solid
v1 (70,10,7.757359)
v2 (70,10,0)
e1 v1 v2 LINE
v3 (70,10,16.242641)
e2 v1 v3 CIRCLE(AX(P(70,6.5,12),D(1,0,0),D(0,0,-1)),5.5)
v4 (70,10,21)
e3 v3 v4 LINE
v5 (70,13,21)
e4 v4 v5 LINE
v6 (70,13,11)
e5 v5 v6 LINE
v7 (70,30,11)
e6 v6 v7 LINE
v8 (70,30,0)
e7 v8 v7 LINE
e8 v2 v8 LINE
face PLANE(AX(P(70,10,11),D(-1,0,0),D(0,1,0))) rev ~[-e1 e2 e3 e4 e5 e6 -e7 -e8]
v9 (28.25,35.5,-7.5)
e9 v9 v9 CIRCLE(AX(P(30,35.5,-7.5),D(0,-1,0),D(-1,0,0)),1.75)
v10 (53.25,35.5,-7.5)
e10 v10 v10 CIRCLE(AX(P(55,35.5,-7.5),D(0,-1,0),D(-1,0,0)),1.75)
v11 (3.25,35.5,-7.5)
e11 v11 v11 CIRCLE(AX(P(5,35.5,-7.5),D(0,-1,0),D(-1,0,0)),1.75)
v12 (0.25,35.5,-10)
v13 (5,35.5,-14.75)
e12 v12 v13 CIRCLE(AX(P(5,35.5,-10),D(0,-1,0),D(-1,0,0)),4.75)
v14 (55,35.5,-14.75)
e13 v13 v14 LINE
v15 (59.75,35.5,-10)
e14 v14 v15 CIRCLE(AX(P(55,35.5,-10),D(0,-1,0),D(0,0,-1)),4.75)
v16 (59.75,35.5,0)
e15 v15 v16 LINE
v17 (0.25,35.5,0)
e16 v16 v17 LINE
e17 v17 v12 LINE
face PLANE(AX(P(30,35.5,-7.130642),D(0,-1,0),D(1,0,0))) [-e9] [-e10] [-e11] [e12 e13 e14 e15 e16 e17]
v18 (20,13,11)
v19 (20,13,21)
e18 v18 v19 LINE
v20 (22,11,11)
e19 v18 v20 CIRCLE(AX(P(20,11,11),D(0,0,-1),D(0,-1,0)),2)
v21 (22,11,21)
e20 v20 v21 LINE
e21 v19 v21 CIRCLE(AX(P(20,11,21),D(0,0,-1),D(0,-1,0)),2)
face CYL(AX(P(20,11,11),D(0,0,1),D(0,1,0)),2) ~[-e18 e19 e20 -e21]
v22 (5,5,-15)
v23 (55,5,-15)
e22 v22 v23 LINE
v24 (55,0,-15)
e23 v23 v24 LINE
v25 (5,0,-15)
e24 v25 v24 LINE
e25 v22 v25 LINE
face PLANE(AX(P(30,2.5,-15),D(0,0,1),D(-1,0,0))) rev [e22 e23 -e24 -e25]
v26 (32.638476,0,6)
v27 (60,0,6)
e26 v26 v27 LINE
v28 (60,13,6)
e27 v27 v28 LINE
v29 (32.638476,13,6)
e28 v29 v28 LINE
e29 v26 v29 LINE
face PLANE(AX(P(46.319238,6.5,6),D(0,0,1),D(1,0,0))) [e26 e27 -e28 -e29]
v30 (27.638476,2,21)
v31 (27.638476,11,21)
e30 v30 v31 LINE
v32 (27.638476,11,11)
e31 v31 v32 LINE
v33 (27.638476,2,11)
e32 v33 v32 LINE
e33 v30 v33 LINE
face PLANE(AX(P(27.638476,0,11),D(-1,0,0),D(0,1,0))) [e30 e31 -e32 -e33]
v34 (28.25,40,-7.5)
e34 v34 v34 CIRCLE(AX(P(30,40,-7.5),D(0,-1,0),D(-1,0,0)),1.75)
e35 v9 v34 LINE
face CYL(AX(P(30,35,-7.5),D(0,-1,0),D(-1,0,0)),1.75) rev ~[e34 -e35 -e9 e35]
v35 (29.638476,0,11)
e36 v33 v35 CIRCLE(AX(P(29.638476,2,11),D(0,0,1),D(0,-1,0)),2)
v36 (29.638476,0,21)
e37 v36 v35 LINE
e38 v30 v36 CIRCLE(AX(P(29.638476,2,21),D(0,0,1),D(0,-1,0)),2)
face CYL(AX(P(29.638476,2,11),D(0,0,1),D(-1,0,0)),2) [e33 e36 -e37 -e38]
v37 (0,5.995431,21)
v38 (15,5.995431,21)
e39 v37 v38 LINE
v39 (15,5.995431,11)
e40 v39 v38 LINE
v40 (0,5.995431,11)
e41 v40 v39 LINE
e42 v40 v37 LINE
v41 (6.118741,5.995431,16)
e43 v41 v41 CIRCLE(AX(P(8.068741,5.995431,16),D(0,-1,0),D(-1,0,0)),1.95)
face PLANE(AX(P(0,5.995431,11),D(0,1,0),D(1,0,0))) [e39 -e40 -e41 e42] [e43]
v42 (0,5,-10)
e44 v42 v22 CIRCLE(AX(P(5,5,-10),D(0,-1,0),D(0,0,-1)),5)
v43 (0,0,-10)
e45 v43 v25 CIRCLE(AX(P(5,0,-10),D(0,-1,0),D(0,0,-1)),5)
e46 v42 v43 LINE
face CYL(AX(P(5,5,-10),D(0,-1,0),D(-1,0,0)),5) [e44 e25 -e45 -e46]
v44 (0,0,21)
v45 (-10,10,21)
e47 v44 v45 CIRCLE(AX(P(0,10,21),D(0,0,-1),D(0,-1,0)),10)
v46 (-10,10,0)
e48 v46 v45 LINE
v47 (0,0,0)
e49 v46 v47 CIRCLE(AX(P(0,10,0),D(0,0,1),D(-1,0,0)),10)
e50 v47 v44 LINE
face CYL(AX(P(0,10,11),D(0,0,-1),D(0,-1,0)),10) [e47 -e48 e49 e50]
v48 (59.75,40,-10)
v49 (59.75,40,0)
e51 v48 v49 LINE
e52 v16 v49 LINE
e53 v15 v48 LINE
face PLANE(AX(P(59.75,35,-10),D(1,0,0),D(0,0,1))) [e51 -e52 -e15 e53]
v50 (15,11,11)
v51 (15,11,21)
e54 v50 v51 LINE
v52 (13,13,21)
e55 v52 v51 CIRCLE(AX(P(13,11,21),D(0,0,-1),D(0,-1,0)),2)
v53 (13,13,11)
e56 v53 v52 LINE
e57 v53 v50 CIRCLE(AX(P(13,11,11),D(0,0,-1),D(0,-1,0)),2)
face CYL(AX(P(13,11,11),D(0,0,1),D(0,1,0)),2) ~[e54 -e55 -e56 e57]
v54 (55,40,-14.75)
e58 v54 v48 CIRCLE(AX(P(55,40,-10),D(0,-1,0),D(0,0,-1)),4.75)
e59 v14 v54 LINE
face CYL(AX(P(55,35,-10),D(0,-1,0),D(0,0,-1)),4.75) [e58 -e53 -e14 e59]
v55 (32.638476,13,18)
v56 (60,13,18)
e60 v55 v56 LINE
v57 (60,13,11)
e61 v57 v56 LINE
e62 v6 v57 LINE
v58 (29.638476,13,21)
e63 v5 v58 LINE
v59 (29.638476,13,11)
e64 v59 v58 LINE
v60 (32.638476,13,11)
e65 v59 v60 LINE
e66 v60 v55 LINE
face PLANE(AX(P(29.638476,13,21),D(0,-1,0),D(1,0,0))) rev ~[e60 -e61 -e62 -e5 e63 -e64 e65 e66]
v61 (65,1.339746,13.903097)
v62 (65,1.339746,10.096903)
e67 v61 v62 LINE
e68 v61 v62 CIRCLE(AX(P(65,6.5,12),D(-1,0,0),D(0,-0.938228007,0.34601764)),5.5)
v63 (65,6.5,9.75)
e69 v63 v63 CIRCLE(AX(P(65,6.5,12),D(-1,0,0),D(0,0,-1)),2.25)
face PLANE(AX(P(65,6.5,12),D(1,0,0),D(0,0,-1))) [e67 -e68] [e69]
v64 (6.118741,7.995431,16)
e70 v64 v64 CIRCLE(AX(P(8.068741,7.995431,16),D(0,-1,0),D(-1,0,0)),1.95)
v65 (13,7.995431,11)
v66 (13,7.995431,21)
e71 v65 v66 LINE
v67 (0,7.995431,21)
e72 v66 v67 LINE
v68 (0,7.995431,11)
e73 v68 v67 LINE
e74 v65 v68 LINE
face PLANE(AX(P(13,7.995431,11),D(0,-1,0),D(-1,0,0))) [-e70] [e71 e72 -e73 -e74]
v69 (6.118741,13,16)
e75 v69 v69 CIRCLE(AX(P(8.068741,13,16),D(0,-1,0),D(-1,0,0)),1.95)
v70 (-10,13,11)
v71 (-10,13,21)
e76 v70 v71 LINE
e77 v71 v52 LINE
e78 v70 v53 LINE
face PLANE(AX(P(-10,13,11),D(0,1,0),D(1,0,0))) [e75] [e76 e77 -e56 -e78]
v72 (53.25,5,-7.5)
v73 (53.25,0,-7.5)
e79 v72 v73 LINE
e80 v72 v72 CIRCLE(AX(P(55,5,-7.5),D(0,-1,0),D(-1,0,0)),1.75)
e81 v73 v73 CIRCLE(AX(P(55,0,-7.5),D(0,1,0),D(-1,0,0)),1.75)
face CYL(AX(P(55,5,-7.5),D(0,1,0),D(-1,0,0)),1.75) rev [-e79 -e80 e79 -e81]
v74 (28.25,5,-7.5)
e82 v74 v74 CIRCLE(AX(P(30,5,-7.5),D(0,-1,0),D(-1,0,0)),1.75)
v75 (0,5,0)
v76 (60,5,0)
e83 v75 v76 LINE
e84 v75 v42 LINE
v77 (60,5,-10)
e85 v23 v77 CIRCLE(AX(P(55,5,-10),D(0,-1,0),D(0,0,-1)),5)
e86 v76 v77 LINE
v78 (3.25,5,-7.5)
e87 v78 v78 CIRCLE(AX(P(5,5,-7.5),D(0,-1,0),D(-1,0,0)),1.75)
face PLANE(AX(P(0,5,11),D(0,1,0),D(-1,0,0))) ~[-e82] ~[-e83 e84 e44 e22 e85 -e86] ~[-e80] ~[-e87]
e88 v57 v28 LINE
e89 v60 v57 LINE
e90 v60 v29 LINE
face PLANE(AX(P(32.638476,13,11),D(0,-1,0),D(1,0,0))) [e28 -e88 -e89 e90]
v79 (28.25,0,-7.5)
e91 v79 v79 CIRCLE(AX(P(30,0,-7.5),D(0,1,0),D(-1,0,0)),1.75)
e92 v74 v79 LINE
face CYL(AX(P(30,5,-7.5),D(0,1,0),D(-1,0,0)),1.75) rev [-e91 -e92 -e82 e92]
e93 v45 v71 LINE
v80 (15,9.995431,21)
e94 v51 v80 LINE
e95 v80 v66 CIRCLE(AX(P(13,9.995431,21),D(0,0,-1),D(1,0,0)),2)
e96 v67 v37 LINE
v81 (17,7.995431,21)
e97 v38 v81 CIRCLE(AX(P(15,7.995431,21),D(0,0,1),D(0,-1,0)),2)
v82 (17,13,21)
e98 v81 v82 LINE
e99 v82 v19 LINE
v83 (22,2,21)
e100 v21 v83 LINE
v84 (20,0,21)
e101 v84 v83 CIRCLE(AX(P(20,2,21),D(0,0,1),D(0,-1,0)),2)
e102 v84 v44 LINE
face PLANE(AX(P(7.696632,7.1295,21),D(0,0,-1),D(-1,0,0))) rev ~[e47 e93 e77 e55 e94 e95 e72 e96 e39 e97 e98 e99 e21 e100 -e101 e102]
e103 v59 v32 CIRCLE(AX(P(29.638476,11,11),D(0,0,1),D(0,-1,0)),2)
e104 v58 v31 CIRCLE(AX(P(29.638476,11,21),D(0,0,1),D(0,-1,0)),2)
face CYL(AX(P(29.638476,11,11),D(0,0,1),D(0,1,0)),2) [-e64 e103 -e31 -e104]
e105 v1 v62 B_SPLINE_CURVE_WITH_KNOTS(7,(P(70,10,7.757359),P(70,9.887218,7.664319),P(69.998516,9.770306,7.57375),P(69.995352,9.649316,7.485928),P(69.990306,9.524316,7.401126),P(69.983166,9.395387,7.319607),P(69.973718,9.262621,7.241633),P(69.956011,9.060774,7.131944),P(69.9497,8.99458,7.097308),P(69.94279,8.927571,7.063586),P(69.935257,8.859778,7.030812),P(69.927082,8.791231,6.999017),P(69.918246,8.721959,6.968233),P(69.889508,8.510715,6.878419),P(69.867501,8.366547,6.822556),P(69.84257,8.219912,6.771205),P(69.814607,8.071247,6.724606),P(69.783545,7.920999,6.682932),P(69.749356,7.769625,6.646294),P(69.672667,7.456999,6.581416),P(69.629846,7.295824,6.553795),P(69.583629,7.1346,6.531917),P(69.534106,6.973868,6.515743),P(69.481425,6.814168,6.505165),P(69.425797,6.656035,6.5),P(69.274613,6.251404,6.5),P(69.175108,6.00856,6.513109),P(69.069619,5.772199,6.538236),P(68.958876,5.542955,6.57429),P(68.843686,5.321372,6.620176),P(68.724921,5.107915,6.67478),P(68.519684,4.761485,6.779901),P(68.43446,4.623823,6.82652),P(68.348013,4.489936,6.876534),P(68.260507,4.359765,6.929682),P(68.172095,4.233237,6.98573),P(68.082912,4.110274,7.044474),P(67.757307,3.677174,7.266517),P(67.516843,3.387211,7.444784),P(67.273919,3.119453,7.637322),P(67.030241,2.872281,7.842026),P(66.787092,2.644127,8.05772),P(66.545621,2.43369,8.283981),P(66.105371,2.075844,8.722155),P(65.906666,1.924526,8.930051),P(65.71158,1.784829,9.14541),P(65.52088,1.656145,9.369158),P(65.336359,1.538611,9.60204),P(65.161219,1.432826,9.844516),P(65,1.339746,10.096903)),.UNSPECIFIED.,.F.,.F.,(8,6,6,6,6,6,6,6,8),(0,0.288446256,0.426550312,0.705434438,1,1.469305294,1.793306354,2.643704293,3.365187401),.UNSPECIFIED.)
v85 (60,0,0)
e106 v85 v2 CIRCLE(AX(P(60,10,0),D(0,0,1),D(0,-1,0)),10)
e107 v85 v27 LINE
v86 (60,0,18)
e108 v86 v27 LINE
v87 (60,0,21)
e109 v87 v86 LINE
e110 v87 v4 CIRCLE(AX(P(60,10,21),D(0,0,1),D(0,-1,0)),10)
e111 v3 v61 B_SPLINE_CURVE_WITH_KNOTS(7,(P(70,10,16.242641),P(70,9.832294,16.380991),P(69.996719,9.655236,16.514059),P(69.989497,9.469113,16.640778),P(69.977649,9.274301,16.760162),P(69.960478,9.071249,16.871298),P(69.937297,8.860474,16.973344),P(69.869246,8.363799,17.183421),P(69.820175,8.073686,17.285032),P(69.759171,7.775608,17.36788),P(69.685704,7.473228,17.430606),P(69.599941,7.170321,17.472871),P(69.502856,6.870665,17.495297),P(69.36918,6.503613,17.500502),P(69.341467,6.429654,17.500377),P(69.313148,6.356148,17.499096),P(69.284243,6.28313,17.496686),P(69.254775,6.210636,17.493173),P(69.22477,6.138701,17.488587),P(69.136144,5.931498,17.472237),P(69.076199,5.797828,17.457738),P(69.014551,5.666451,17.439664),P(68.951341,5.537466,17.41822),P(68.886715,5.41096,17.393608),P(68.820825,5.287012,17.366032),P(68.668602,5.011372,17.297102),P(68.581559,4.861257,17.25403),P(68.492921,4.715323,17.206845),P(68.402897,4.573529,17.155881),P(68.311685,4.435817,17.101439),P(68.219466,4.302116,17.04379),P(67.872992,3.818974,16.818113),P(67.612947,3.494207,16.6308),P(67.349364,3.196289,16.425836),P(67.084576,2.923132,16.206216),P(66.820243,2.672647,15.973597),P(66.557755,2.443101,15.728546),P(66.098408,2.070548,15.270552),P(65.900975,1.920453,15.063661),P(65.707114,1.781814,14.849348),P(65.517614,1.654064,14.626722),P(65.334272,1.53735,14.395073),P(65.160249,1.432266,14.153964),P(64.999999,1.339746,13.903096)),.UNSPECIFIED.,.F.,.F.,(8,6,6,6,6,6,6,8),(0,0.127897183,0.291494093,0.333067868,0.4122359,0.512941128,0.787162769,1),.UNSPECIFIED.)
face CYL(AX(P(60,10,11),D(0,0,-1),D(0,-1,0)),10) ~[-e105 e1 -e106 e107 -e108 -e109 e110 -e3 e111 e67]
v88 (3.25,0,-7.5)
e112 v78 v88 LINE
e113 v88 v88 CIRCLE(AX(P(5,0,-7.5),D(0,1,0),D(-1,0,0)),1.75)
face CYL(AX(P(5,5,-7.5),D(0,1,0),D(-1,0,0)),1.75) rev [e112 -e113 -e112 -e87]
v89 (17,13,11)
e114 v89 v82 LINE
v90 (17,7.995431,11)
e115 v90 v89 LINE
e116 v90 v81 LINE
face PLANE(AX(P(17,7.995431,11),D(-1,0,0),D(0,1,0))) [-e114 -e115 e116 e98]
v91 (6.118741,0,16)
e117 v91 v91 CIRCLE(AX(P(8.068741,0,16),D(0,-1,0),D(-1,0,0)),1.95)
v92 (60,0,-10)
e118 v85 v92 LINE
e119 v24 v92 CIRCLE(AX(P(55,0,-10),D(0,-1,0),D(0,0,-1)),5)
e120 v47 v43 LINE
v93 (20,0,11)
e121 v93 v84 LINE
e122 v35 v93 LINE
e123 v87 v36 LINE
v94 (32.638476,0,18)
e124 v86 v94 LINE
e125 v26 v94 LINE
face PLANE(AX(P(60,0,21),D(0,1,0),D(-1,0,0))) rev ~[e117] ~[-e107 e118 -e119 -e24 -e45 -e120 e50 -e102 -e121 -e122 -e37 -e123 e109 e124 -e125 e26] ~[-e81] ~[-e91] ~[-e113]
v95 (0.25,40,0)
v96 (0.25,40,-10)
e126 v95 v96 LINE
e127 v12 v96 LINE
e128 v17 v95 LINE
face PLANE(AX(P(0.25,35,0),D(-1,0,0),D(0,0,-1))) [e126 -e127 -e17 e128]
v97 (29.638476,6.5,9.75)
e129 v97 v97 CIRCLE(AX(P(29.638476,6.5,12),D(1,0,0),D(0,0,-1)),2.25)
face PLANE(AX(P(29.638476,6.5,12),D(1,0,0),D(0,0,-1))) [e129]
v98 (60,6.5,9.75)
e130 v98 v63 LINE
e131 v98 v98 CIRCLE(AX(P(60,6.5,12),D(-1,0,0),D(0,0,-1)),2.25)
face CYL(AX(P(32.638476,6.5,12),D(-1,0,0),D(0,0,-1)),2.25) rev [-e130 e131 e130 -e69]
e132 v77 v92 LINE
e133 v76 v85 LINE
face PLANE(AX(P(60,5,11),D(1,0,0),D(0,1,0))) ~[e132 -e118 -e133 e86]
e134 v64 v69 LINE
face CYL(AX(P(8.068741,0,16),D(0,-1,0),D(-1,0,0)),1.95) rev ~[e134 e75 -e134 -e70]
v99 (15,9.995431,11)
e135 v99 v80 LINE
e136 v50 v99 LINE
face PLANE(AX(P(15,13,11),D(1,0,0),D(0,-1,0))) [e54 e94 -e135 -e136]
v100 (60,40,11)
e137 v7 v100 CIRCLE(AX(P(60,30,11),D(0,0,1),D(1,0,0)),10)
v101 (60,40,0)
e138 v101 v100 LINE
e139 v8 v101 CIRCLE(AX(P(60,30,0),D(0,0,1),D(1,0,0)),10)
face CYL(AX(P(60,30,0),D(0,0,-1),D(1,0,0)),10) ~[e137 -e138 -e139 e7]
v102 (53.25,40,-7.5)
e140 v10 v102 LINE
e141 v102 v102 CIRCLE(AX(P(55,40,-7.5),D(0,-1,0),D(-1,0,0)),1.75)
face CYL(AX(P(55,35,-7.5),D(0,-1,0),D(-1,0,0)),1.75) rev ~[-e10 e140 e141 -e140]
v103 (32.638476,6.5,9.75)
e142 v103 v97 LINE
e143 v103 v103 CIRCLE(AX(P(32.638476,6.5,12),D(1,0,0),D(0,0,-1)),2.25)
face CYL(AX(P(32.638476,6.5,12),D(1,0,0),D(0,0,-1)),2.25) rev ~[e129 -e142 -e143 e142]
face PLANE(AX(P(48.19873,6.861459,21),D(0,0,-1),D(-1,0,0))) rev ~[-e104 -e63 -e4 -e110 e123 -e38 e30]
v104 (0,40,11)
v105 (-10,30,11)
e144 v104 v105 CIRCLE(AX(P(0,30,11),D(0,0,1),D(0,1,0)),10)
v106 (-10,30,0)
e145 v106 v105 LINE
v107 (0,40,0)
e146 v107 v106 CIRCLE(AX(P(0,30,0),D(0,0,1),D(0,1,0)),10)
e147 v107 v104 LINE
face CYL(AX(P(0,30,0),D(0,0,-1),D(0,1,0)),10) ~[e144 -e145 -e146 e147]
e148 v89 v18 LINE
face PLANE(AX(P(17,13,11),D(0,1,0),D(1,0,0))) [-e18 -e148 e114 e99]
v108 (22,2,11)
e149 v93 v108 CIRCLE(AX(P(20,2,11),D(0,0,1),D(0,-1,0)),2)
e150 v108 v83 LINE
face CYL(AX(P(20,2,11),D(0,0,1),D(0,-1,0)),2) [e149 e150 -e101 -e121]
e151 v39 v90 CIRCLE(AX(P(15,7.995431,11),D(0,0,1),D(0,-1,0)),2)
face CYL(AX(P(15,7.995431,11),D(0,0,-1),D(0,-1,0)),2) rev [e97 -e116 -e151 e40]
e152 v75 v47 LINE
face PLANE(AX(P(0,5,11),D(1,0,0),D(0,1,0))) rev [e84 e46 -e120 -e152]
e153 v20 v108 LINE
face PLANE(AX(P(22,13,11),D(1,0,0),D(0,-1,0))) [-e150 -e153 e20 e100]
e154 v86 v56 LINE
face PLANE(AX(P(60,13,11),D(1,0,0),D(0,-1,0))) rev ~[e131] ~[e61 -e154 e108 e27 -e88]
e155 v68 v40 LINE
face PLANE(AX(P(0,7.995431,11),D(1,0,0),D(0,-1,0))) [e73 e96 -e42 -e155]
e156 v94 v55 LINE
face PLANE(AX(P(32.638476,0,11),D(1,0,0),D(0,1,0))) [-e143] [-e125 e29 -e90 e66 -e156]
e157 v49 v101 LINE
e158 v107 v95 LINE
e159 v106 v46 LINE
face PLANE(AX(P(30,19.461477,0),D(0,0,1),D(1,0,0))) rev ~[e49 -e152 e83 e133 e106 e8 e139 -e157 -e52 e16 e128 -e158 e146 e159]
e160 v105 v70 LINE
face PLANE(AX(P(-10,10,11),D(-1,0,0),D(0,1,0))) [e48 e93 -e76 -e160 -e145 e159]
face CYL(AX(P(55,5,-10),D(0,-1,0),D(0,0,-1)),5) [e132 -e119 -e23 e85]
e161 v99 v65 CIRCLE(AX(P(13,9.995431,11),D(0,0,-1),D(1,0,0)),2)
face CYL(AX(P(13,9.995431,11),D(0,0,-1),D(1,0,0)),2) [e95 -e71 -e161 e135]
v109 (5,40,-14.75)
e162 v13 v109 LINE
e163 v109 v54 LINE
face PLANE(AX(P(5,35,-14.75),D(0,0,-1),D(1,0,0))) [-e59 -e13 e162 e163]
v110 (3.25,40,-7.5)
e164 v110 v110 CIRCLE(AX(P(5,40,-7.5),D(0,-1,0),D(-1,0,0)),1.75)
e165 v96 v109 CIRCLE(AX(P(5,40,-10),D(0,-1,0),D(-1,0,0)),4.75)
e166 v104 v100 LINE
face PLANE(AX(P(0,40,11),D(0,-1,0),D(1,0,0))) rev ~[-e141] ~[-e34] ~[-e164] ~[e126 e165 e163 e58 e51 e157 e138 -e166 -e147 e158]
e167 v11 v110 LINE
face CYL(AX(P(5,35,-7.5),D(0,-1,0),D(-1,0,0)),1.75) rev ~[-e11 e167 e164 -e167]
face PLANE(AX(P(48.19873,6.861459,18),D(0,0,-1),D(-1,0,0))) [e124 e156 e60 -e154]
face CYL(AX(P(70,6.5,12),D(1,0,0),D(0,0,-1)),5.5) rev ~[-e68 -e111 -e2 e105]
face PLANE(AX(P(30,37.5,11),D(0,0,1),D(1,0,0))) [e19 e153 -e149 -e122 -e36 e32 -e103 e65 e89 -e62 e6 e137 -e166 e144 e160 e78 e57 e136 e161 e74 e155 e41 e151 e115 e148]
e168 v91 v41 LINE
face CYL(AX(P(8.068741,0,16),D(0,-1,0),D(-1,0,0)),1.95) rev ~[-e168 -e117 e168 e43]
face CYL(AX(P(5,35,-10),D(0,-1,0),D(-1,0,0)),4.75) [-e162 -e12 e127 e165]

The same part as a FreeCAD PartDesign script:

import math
import FreeCAD as App
import Part
import Sketcher

V = App.Vector
Q = App.Units.Quantity


def edges_at(feature, points):
    """Names of the edges that pass closest to the given points."""
    edges = feature.Shape.Edges
    near = lambda p: min(range(len(edges)), key=lambda i: edges[i].distToShape(Part.Vertex(*p))[0])
    return sorted({f"Edge{near(p) + 1}" for p in points})

doc = App.newDocument("Part")
body = doc.addObject("PartDesign::Body", "Body")

# Sketch on XY plane
sketch1 = doc.addObject("Sketcher::SketchObject", "Sketch")
body.addObject(sketch1)
sketch1.AttachmentSupport = (doc.XY_Plane, [""])
sketch1.MapMode = "FlatFace"
sketch1.addGeometry(Part.LineSegment(V(60, 35, 0), V(0, 35, 0)), False)
sketch1.addGeometry(Part.LineSegment(V(0, 35, 0), V(0, 40, 0)), False)
sketch1.addGeometry(Part.ArcOfCircle(Part.Circle(V(0, 30, 0), V(0, 0, 1), 10), math.radians(90), math.radians(180)), False)
sketch1.addGeometry(Part.LineSegment(V(-10, 30, 0), V(-10, 10, 0)), False)
sketch1.addGeometry(Part.ArcOfCircle(Part.Circle(V(0, 10, 0), V(0, 0, 1), 10), math.radians(180), math.radians(270)), False)
sketch1.addGeometry(Part.LineSegment(V(0, 0, 0), V(60, 0, 0)), False)
sketch1.addGeometry(Part.ArcOfCircle(Part.Circle(V(60, 10, 0), V(0, 0, 1), 10), math.radians(-90), math.radians(0)), False)
sketch1.addGeometry(Part.LineSegment(V(70, 10, 0), V(70, 30, 0)), False)
sketch1.addGeometry(Part.ArcOfCircle(Part.Circle(V(60, 30, 0), V(0, 0, 1), 10), math.radians(0), math.radians(90)), False)
sketch1.addGeometry(Part.LineSegment(V(60, 40, 0), V(60, 35, 0)), False)
sketch1.addConstraint(Sketcher.Constraint("Coincident", 0, 2, 1, 1))
sketch1.addConstraint(Sketcher.Constraint("Coincident", 1, 2, 2, 1))
sketch1.addConstraint(Sketcher.Constraint("Tangent", 2, 2, 3, 1))
sketch1.addConstraint(Sketcher.Constraint("Tangent", 3, 2, 4, 1))
sketch1.addConstraint(Sketcher.Constraint("Tangent", 4, 2, 5, 1))
sketch1.addConstraint(Sketcher.Constraint("Tangent", 5, 2, 6, 1))
sketch1.addConstraint(Sketcher.Constraint("Tangent", 6, 2, 7, 1))
sketch1.addConstraint(Sketcher.Constraint("Tangent", 7, 2, 8, 1))
sketch1.addConstraint(Sketcher.Constraint("Coincident", 8, 2, 9, 1))
sketch1.addConstraint(Sketcher.Constraint("Coincident", 9, 2, 0, 1))
sketch1.addConstraint(Sketcher.Constraint("Horizontal", 0))
sketch1.addConstraint(Sketcher.Constraint("Vertical", 1))
sketch1.addConstraint(Sketcher.Constraint("Vertical", 3))
sketch1.addConstraint(Sketcher.Constraint("Horizontal", 5))
sketch1.addConstraint(Sketcher.Constraint("Vertical", 7))
sketch1.addConstraint(Sketcher.Constraint("Vertical", 9))
sketch1.addConstraint(Sketcher.Constraint("Coincident", 4, 2, -1, 1))
sketch1.addConstraint(Sketcher.Constraint("Equal", 2, 4))
sketch1.addConstraint(Sketcher.Constraint("Equal", 4, 6))
sketch1.addConstraint(Sketcher.Constraint("Equal", 6, 8))
sketch1.addConstraint(Sketcher.Constraint("PointOnObject", 0, 2, -2))
sketch1.addConstraint(Sketcher.Constraint("Horizontal", 2, 3, 8, 3))
sketch1.addConstraint(Sketcher.Constraint("Vertical", 5, 2, 8, 2))
sketch1.addConstraint(Sketcher.Constraint("Radius", 2, Q("10 mm")))
sketch1.addConstraint(Sketcher.Constraint("DistanceX", 0, 2, 0, 1, Q("60 mm")))
sketch1.addConstraint(Sketcher.Constraint("DistanceY", 1, 1, 1, 2, Q("5 mm")))
sketch1.addConstraint(Sketcher.Constraint("DistanceY", 3, 2, 3, 1, Q("20 mm")))
pad1 = doc.addObject("PartDesign::Pad", "Pad")
body.addObject(pad1)
pad1.Profile = sketch1
pad1.Length = 11

# Sketch on XY plane
sketch2 = doc.addObject("Sketcher::SketchObject", "Sketch001")
body.addObject(sketch2)
sketch2.AttachmentSupport = (doc.XY_Plane, [""])
sketch2.MapMode = "FlatFace"
sketch2.AttachmentOffset = App.Placement(V(0, 0, 11), App.Rotation())
sketch2.addGeometry(Part.LineSegment(V(0, 40, 0), V(0, 35, 0)), False)
sketch2.addGeometry(Part.LineSegment(V(0, 35, 0), V(60, 35, 0)), False)
sketch2.addGeometry(Part.LineSegment(V(60, 35, 0), V(60, 40, 0)), False)
sketch2.addGeometry(Part.LineSegment(V(60, 40, 0), V(0, 40, 0)), False)
sketch2.addConstraint(Sketcher.Constraint("Coincident", 0, 2, 1, 1))
sketch2.addConstraint(Sketcher.Constraint("Coincident", 1, 2, 2, 1))
sketch2.addConstraint(Sketcher.Constraint("Coincident", 2, 2, 3, 1))
sketch2.addConstraint(Sketcher.Constraint("Coincident", 3, 2, 0, 1))
sketch2.addConstraint(Sketcher.Constraint("Vertical", 0))
sketch2.addConstraint(Sketcher.Constraint("Horizontal", 1))
sketch2.addConstraint(Sketcher.Constraint("Vertical", 2))
sketch2.addConstraint(Sketcher.Constraint("Horizontal", 3))
sketch2.addConstraint(Sketcher.Constraint("PointOnObject", 0, 2, -2))
sketch2.addConstraint(Sketcher.Constraint("DistanceX", 1, 1, 1, 2, Q("60 mm")))
sketch2.addConstraint(Sketcher.Constraint("DistanceY", 0, 2, 0, 1, Q("5 mm")))
sketch2.addConstraint(Sketcher.Constraint("DistanceY", -1, 1, 0, 2, Q("35 mm")))
pad2 = doc.addObject("PartDesign::Pad", "Pad001")
body.addObject(pad2)
pad2.Profile = sketch2
pad2.Length = 26
pad2.Reversed = True
doc.recompute()

fillet = doc.addObject("PartDesign::Fillet", "Fillet")
body.addObject(fillet)
fillet.Base = (pad2, edges_at(pad2, [(0, 37.5, -15), (60, 37.5, -15)]))
fillet.Radius = 5

# Sketch on XZ plane
sketch3 = doc.addObject("Sketcher::SketchObject", "Sketch002")
body.addObject(sketch3)
sketch3.AttachmentSupport = (doc.XZ_Plane, [""])
sketch3.MapMode = "FlatFace"
sketch3.AttachmentOffset = App.Placement(V(0, 0, -35), App.Rotation())
sketch3.addGeometry(Part.Circle(V(55, -7.5, 0), V(0, 0, 1), 1.8), False)
sketch3.addGeometry(Part.Circle(V(30, -7.5, 0), V(0, 0, 1), 1.8), False)
sketch3.addGeometry(Part.Circle(V(5, -7.5, 0), V(0, 0, 1), 1.8), False)
sketch3.addConstraint(Sketcher.Constraint("Equal", 0, 1))
sketch3.addConstraint(Sketcher.Constraint("Equal", 1, 2))
sketch3.addConstraint(Sketcher.Constraint("Horizontal", 0, 3, 1, 3))
sketch3.addConstraint(Sketcher.Constraint("Horizontal", 1, 3, 2, 3))
sketch3.addConstraint(Sketcher.Constraint("Diameter", 0, Q("3.5 mm")))
sketch3.addConstraint(Sketcher.Constraint("DistanceX", -1, 1, 0, 3, Q("55 mm")))
sketch3.addConstraint(Sketcher.Constraint("DistanceX", -1, 1, 1, 3, Q("30 mm")))
sketch3.addConstraint(Sketcher.Constraint("DistanceX", -1, 1, 2, 3, Q("5 mm")))
sketch3.addConstraint(Sketcher.Constraint("DistanceY", 0, 3, -1, 1, Q("7.5 mm")))
pocket1 = doc.addObject("PartDesign::Pocket", "Pocket")
body.addObject(pocket1)
pocket1.Profile = sketch3
pocket1.Length = 25

# Sketch on XZ plane
sketch4 = doc.addObject("Sketcher::SketchObject", "Sketch003")
body.addObject(sketch4)
sketch4.AttachmentSupport = (doc.XZ_Plane, [""])
sketch4.MapMode = "FlatFace"
sketch4.AttachmentOffset = App.Placement(V(0, 0, -35), App.Rotation())
sketch4.addGeometry(Part.LineSegment(V(55, -14.75, 0), V(5, -14.75, 0)), False)
sketch4.addGeometry(Part.ArcOfCircle(Part.Circle(V(5, -10, 0), V(0, 0, 1), 4.75), math.radians(180), math.radians(270)), False)
sketch4.addGeometry(Part.LineSegment(V(0.25, -10, 0), V(0.25, 0, 0)), False)
sketch4.addGeometry(Part.LineSegment(V(0.25, 0, 0), V(0, 0, 0)), False)
sketch4.addGeometry(Part.LineSegment(V(0, 0, 0), V(0, -10, 0)), False)
sketch4.addGeometry(Part.ArcOfCircle(Part.Circle(V(5, -10, 0), V(0, 0, 1), 5), math.radians(180), math.radians(270)), False)
sketch4.addGeometry(Part.LineSegment(V(5, -15, 0), V(55, -15, 0)), False)
sketch4.addGeometry(Part.ArcOfCircle(Part.Circle(V(55, -10, 0), V(0, 0, 1), 5), math.radians(-90), math.radians(0)), False)
sketch4.addGeometry(Part.LineSegment(V(60, -10, 0), V(60, 0, 0)), False)
sketch4.addGeometry(Part.LineSegment(V(60, 0, 0), V(59.75, 0, 0)), False)
sketch4.addGeometry(Part.LineSegment(V(59.75, 0, 0), V(59.75, -10, 0)), False)
sketch4.addGeometry(Part.ArcOfCircle(Part.Circle(V(55, -10, 0), V(0, 0, 1), 4.75), math.radians(-90), math.radians(0)), False)
sketch4.addConstraint(Sketcher.Constraint("Tangent", 0, 2, 1, 2))
sketch4.addConstraint(Sketcher.Constraint("Tangent", 1, 1, 2, 1))
sketch4.addConstraint(Sketcher.Constraint("Coincident", 2, 2, 3, 1))
sketch4.addConstraint(Sketcher.Constraint("Coincident", 3, 2, 4, 1))
sketch4.addConstraint(Sketcher.Constraint("Tangent", 4, 2, 5, 1))
sketch4.addConstraint(Sketcher.Constraint("Tangent", 5, 2, 6, 1))
sketch4.addConstraint(Sketcher.Constraint("Tangent", 6, 2, 7, 1))
sketch4.addConstraint(Sketcher.Constraint("Tangent", 7, 2, 8, 1))
sketch4.addConstraint(Sketcher.Constraint("Coincident", 8, 2, 9, 1))
sketch4.addConstraint(Sketcher.Constraint("Coincident", 9, 2, 10, 1))
sketch4.addConstraint(Sketcher.Constraint("Tangent", 10, 2, 11, 2))
sketch4.addConstraint(Sketcher.Constraint("Tangent", 11, 1, 0, 1))
sketch4.addConstraint(Sketcher.Constraint("Horizontal", 0))
sketch4.addConstraint(Sketcher.Constraint("Vertical", 2))
sketch4.addConstraint(Sketcher.Constraint("Horizontal", 3))
sketch4.addConstraint(Sketcher.Constraint("Vertical", 4))
sketch4.addConstraint(Sketcher.Constraint("Horizontal", 6))
sketch4.addConstraint(Sketcher.Constraint("Vertical", 8))
sketch4.addConstraint(Sketcher.Constraint("Horizontal", 9))
sketch4.addConstraint(Sketcher.Constraint("Vertical", 10))
sketch4.addConstraint(Sketcher.Constraint("Coincident", 3, 2, -1, 1))
sketch4.addConstraint(Sketcher.Constraint("Coincident", 5, 3, 1, 3))
sketch4.addConstraint(Sketcher.Constraint("Coincident", 11, 3, 7, 3))
sketch4.addConstraint(Sketcher.Constraint("Equal", 5, 7))
sketch4.addConstraint(Sketcher.Constraint("PointOnObject", 8, 2, -1))
sketch4.addConstraint(Sketcher.Constraint("Radius", 5, Q("5 mm")))
sketch4.addConstraint(Sketcher.Constraint("DistanceX", 0, 2, 0, 1, Q("50 mm")))
sketch4.addConstraint(Sketcher.Constraint("DistanceY", 2, 1, 2, 2, Q("10 mm")))
sketch4.addConstraint(Sketcher.Constraint("Radius", 1, Q("4.75 mm")))
pocket2 = doc.addObject("PartDesign::Pocket", "Pocket001")
body.addObject(pocket2)
pocket2.Profile = sketch4
pocket2.Length = 25
doc.recompute()

datumplane = doc.addObject("PartDesign::Plane", "DatumPlane")
body.addObject(datumplane)
datumplane.AttachmentSupport = (doc.XZ_Plane, [""])
datumplane.MapMode = "FlatFace"
datumplane.AttachmentOffset = App.Placement(V(0, 0, -20), App.Rotation())
mirrored = doc.addObject("PartDesign::Mirrored", "Mirrored")
body.addObject(mirrored)
mirrored.Originals = [pad2, pocket1]
mirrored.MirrorPlane = (datumplane, [""])
body.Tip = mirrored
doc.recompute()

fillet2 = doc.addObject("PartDesign::Fillet", "Fillet001")
body.addObject(fillet2)
fillet2.Base = (mirrored, edges_at(mirrored, [(0, 2.5, -15), (60, 2.5, -15)]))
fillet2.Radius = 5

# Sketch on XZ plane
sketch5 = doc.addObject("Sketcher::SketchObject", "Sketch004")
body.addObject(sketch5)
sketch5.AttachmentSupport = (doc.XZ_Plane, [""])
sketch5.MapMode = "FlatFace"
sketch5.AttachmentOffset = App.Placement(V(0, 0, -35), App.Rotation())
sketch5.addGeometry(Part.LineSegment(V(0.2, 0, 0), V(0.2, -10, 0)), False)
sketch5.addGeometry(Part.ArcOfCircle(Part.Circle(V(5, -10, 0), V(0, 0, 1), 4.7), math.radians(180), math.radians(270)), False)
sketch5.addGeometry(Part.LineSegment(V(5, -14.8, 0), V(55, -14.8, 0)), False)
sketch5.addGeometry(Part.ArcOfCircle(Part.Circle(V(55, -10, 0), V(0, 0, 1), 4.7), math.radians(-90), math.radians(0)), False)
sketch5.addGeometry(Part.LineSegment(V(59.8, -10, 0), V(59.8, 0, 0)), False)
sketch5.addGeometry(Part.LineSegment(V(59.8, 0, 0), V(0.2, 0, 0)), False)
sketch5.addConstraint(Sketcher.Constraint("Tangent", 0, 2, 1, 1))
sketch5.addConstraint(Sketcher.Constraint("Tangent", 1, 2, 2, 1))
sketch5.addConstraint(Sketcher.Constraint("Tangent", 2, 2, 3, 1))
sketch5.addConstraint(Sketcher.Constraint("Tangent", 3, 2, 4, 1))
sketch5.addConstraint(Sketcher.Constraint("Coincident", 4, 2, 5, 1))
sketch5.addConstraint(Sketcher.Constraint("Coincident", 5, 2, 0, 1))
sketch5.addConstraint(Sketcher.Constraint("Vertical", 0))
sketch5.addConstraint(Sketcher.Constraint("Horizontal", 2))
sketch5.addConstraint(Sketcher.Constraint("Vertical", 4))
sketch5.addConstraint(Sketcher.Constraint("Horizontal", 5))
sketch5.addConstraint(Sketcher.Constraint("Equal", 1, 3))
sketch5.addConstraint(Sketcher.Constraint("PointOnObject", 4, 2, -1))
sketch5.addConstraint(Sketcher.Constraint("DistanceX", 2, 1, 2, 2, Q("50 mm")))
sketch5.addConstraint(Sketcher.Constraint("DistanceY", 0, 2, 0, 1, Q("10 mm")))
sketch5.addConstraint(Sketcher.Constraint("Radius", 1, Q("4.75 mm")))
sketch5.addConstraint(Sketcher.Constraint("DistanceX", -1, 1, 1, 3, Q("5 mm")))
pocket3 = doc.addObject("PartDesign::Pocket", "Pocket002")
body.addObject(pocket3)
pocket3.Profile = sketch5
pocket3.Length = 0.5

# Sketch on XY plane
sketch6 = doc.addObject("Sketcher::SketchObject", "Sketch005")
body.addObject(sketch6)
sketch6.AttachmentSupport = (doc.XY_Plane, [""])
sketch6.MapMode = "FlatFace"
sketch6.AttachmentOffset = App.Placement(V(0, 0, 11), App.Rotation())
sketch6.addGeometry(Part.LineSegment(V(15, 13, 0), V(-10, 13, 0)), False)
sketch6.addGeometry(Part.LineSegment(V(-10, 13, 0), V(-10, 10, 0)), False)
sketch6.addGeometry(Part.ArcOfCircle(Part.Circle(V(0, 10, 0), V(0, 0, 1), 10), math.radians(180), math.radians(270)), False)
sketch6.addGeometry(Part.LineSegment(V(0, 0, 0), V(22, 0, 0)), False)
sketch6.addGeometry(Part.LineSegment(V(22, 0, 0), V(22, 13, 0)), False)
sketch6.addGeometry(Part.LineSegment(V(22, 13, 0), V(17, 13, 0)), False)
sketch6.addGeometry(Part.LineSegment(V(17, 13, 0), V(17, 8, 0)), False)
sketch6.addGeometry(Part.ArcOfCircle(Part.Circle(V(15, 8, 0), V(0, 0, 1), 2), math.radians(-90), math.radians(0)), False)
sketch6.addGeometry(Part.LineSegment(V(15, 6, 0), V(0, 6, 0)), False)
sketch6.addGeometry(Part.LineSegment(V(0, 6, 0), V(0, 8, 0)), False)
sketch6.addGeometry(Part.LineSegment(V(0, 8, 0), V(13, 8, 0)), False)
sketch6.addGeometry(Part.ArcOfCircle(Part.Circle(V(13, 10, 0), V(0, 0, 1), 2), math.radians(-90), math.radians(0)), False)
sketch6.addGeometry(Part.LineSegment(V(15, 10, 0), V(15, 13, 0)), False)
sketch6.addConstraint(Sketcher.Constraint("Coincident", 0, 2, 1, 1))
sketch6.addConstraint(Sketcher.Constraint("Tangent", 1, 2, 2, 1))
sketch6.addConstraint(Sketcher.Constraint("Tangent", 2, 2, 3, 1))
sketch6.addConstraint(Sketcher.Constraint("Coincident", 3, 2, 4, 1))
sketch6.addConstraint(Sketcher.Constraint("Coincident", 4, 2, 5, 1))
sketch6.addConstraint(Sketcher.Constraint("Coincident", 5, 2, 6, 1))
sketch6.addConstraint(Sketcher.Constraint("Tangent", 6, 2, 7, 2))
sketch6.addConstraint(Sketcher.Constraint("Tangent", 7, 1, 8, 1))
sketch6.addConstraint(Sketcher.Constraint("Coincident", 8, 2, 9, 1))
sketch6.addConstraint(Sketcher.Constraint("Coincident", 9, 2, 10, 1))
sketch6.addConstraint(Sketcher.Constraint("Tangent", 10, 2, 11, 1))
sketch6.addConstraint(Sketcher.Constraint("Tangent", 11, 2, 12, 1))
sketch6.addConstraint(Sketcher.Constraint("Coincident", 12, 2, 0, 1))
sketch6.addConstraint(Sketcher.Constraint("Horizontal", 0))
sketch6.addConstraint(Sketcher.Constraint("Vertical", 1))
sketch6.addConstraint(Sketcher.Constraint("Horizontal", 3))
sketch6.addConstraint(Sketcher.Constraint("Vertical", 4))
sketch6.addConstraint(Sketcher.Constraint("Horizontal", 5))
sketch6.addConstraint(Sketcher.Constraint("Vertical", 6))
sketch6.addConstraint(Sketcher.Constraint("Horizontal", 8))
sketch6.addConstraint(Sketcher.Constraint("Vertical", 9))
sketch6.addConstraint(Sketcher.Constraint("Horizontal", 10))
sketch6.addConstraint(Sketcher.Constraint("Vertical", 12))
sketch6.addConstraint(Sketcher.Constraint("Coincident", 2, 2, -1, 1))
sketch6.addConstraint(Sketcher.Constraint("Equal", 7, 11))
sketch6.addConstraint(Sketcher.Constraint("PointOnObject", 8, 2, -2))
sketch6.addConstraint(Sketcher.Constraint("Horizontal", 0, 2, 4, 2))
sketch6.addConstraint(Sketcher.Constraint("Horizontal", 6, 2, 9, 2))
sketch6.addConstraint(Sketcher.Constraint("Vertical", 7, 1, 11, 2))
sketch6.addConstraint(Sketcher.Constraint("Equal", 10, 4))
sketch6.addConstraint(Sketcher.Constraint("Radius", 2, Q("10 mm")))
sketch6.addConstraint(Sketcher.Constraint("Radius", 7, Q("2 mm")))
sketch6.addConstraint(Sketcher.Constraint("DistanceX", 0, 2, 0, 1, Q("25 mm")))
sketch6.addConstraint(Sketcher.Constraint("DistanceX", 3, 1, 3, 2, Q("22 mm")))
sketch6.addConstraint(Sketcher.Constraint("DistanceY", 6, 2, 6, 1, Q("5.004569 mm")))
pad3 = doc.addObject("PartDesign::Pad", "Pad002")
body.addObject(pad3)
pad3.Profile = sketch6
pad3.Length = 10

# Sketch on XZ plane
sketch7 = doc.addObject("Sketcher::SketchObject", "Sketch006")
body.addObject(sketch7)
sketch7.AttachmentSupport = (doc.XZ_Plane, [""])
sketch7.MapMode = "FlatFace"
sketch7.addGeometry(Part.Circle(V(8.1, 16, 0), V(0, 0, 1), 1.9), False)
sketch7.addConstraint(Sketcher.Constraint("Diameter", 0, Q("3.9 mm")))
sketch7.addConstraint(Sketcher.Constraint("DistanceY", -1, 1, 0, 3, Q("16 mm")))
sketch7.addConstraint(Sketcher.Constraint("DistanceX", -1, 1, 0, 3, Q("8.068741 mm")))
pocket4 = doc.addObject("PartDesign::Pocket", "Pocket003")
body.addObject(pocket4)
pocket4.Profile = sketch7
pocket4.Length = 14
doc.recompute()

fillet3 = doc.addObject("PartDesign::Fillet", "Fillet002")
body.addObject(fillet3)
fillet3.Base = (pocket4, edges_at(pocket4, [(15, 13, 16)]))
fillet3.Radius = 2

# Sketch on XY plane
sketch8 = doc.addObject("Sketcher::SketchObject", "Sketch007")
body.addObject(sketch8)
sketch8.AttachmentSupport = (doc.XY_Plane, [""])
sketch8.MapMode = "FlatFace"
sketch8.AttachmentOffset = App.Placement(V(0, 0, 11), App.Rotation())
sketch8.addGeometry(Part.LineSegment(V(70, 13, 0), V(60, 13, 0)), False)
sketch8.addGeometry(Part.LineSegment(V(60, 13, 0), V(60, 0, 0)), False)
sketch8.addGeometry(Part.ArcOfCircle(Part.Circle(V(60, 10, 0), V(0, 0, 1), 10), math.radians(-90), math.radians(0)), False)
sketch8.addGeometry(Part.LineSegment(V(70, 10, 0), V(70, 13, 0)), False)
sketch8.addGeometry(Part.LineSegment(V(27.6, 13, 0), V(27.6, 0, 0)), False)
sketch8.addGeometry(Part.LineSegment(V(27.6, 0, 0), V(32.6, 0, 0)), False)
sketch8.addGeometry(Part.LineSegment(V(32.6, 0, 0), V(32.6, 13, 0)), False)
sketch8.addGeometry(Part.LineSegment(V(32.6, 13, 0), V(27.6, 13, 0)), False)
sketch8.addConstraint(Sketcher.Constraint("Coincident", 0, 2, 1, 1))
sketch8.addConstraint(Sketcher.Constraint("Coincident", 1, 2, 2, 1))
sketch8.addConstraint(Sketcher.Constraint("Tangent", 2, 2, 3, 1))
sketch8.addConstraint(Sketcher.Constraint("Coincident", 3, 2, 0, 1))
sketch8.addConstraint(Sketcher.Constraint("Coincident", 4, 2, 5, 1))
sketch8.addConstraint(Sketcher.Constraint("Coincident", 5, 2, 6, 1))
sketch8.addConstraint(Sketcher.Constraint("Coincident", 6, 2, 7, 1))
sketch8.addConstraint(Sketcher.Constraint("Coincident", 7, 2, 4, 1))
sketch8.addConstraint(Sketcher.Constraint("Horizontal", 0))
sketch8.addConstraint(Sketcher.Constraint("Vertical", 1))
sketch8.addConstraint(Sketcher.Constraint("Vertical", 3))
sketch8.addConstraint(Sketcher.Constraint("Vertical", 4))
sketch8.addConstraint(Sketcher.Constraint("Horizontal", 5))
sketch8.addConstraint(Sketcher.Constraint("Vertical", 6))
sketch8.addConstraint(Sketcher.Constraint("Horizontal", 7))
sketch8.addConstraint(Sketcher.Constraint("PointOnObject", 1, 2, -1))
sketch8.addConstraint(Sketcher.Constraint("PointOnObject", 4, 2, -1))
sketch8.addConstraint(Sketcher.Constraint("Horizontal", 3, 2, 6, 2))
sketch8.addConstraint(Sketcher.Constraint("Vertical", 2, 3, 0, 2))
sketch8.addConstraint(Sketcher.Constraint("Radius", 2, Q("10 mm")))
sketch8.addConstraint(Sketcher.Constraint("DistanceX", 5, 1, 5, 2, Q("5 mm")))
sketch8.addConstraint(Sketcher.Constraint("DistanceY", 1, 2, 1, 1, Q("13 mm")))
sketch8.addConstraint(Sketcher.Constraint("DistanceX", -1, 1, 2, 3, Q("60 mm")))
sketch8.addConstraint(Sketcher.Constraint("DistanceX", -1, 1, 4, 2, Q("27.638476 mm")))
pad4 = doc.addObject("PartDesign::Pad", "Pad003")
body.addObject(pad4)
pad4.Profile = sketch8
pad4.Length = 10
doc.recompute()

fillet4 = doc.addObject("PartDesign::Fillet", "Fillet003")
body.addObject(fillet4)
fillet4.Base = (pad4, edges_at(pad4, [(27.638, 13, 16)]))
fillet4.Radius = 2
doc.recompute()

fillet5 = doc.addObject("PartDesign::Fillet", "Fillet004")
body.addObject(fillet5)
fillet5.Base = (fillet4, edges_at(fillet4, [(27.638, 0, 16)]))
fillet5.Radius = 2

# Sketch on XY plane
sketch9 = doc.addObject("Sketcher::SketchObject", "Sketch008")
body.addObject(sketch9)
sketch9.AttachmentSupport = (doc.XY_Plane, [""])
sketch9.MapMode = "FlatFace"
sketch9.AttachmentOffset = App.Placement(V(0, 0, 11), App.Rotation())
sketch9.addGeometry(Part.LineSegment(V(33, 13, 0), V(33, 0, 0)), False)
sketch9.addGeometry(Part.LineSegment(V(33, 0, 0), V(60, 0, 0)), False)
sketch9.addGeometry(Part.LineSegment(V(60, 0, 0), V(60, 13, 0)), False)
sketch9.addGeometry(Part.LineSegment(V(60, 13, 0), V(33, 13, 0)), False)
sketch9.addConstraint(Sketcher.Constraint("Coincident", 0, 2, 1, 1))
sketch9.addConstraint(Sketcher.Constraint("Coincident", 1, 2, 2, 1))
sketch9.addConstraint(Sketcher.Constraint("Coincident", 2, 2, 3, 1))
sketch9.addConstraint(Sketcher.Constraint("Coincident", 3, 2, 0, 1))
sketch9.addConstraint(Sketcher.Constraint("Vertical", 0))
sketch9.addConstraint(Sketcher.Constraint("Horizontal", 1))
sketch9.addConstraint(Sketcher.Constraint("Vertical", 2))
sketch9.addConstraint(Sketcher.Constraint("Horizontal", 3))
sketch9.addConstraint(Sketcher.Constraint("PointOnObject", 0, 2, -1))
sketch9.addConstraint(Sketcher.Constraint("DistanceY", 0, 2, 0, 1, Q("13 mm")))
sketch9.addConstraint(Sketcher.Constraint("DistanceX", -1, 1, 1, 2, Q("60 mm")))
sketch9.addConstraint(Sketcher.Constraint("DistanceX", 1, 1, 1, 2, Q("27.361524 mm")))
pocket5 = doc.addObject("PartDesign::Pocket", "Pocket004")
body.addObject(pocket5)
pocket5.Profile = sketch9
pocket5.Length = 5

# Sketch on YZ plane
sketch10 = doc.addObject("Sketcher::SketchObject", "Sketch009")
body.addObject(sketch10)
sketch10.AttachmentSupport = (doc.YZ_Plane, [""])
sketch10.MapMode = "FlatFace"
sketch10.AttachmentOffset = App.Placement(V(0, 0, 32.638476), App.Rotation())
sketch10.addGeometry(Part.Circle(V(6.5, 12, 0), V(0, 0, 1), 2.2), False)
sketch10.addConstraint(Sketcher.Constraint("Diameter", 0, Q("4.5 mm")))
sketch10.addConstraint(Sketcher.Constraint("DistanceY", -1, 1, 0, 3, Q("12 mm")))
sketch10.addConstraint(Sketcher.Constraint("DistanceX", -1, 1, 0, 3, Q("6.5 mm")))
pocket6 = doc.addObject("PartDesign::Pocket", "Pocket005")
body.addObject(pocket6)
pocket6.Profile = sketch10
pocket6.Type = "TwoLengths"
pocket6.Length = 38.361524
pocket6.Length2 = 3
pocket6.Reversed = True

# Sketch on YZ plane
sketch11 = doc.addObject("Sketcher::SketchObject", "Sketch010")
body.addObject(sketch11)
sketch11.AttachmentSupport = (doc.YZ_Plane, [""])
sketch11.MapMode = "FlatFace"
sketch11.AttachmentOffset = App.Placement(V(0, 0, 70), App.Rotation())
sketch11.addGeometry(Part.Circle(V(6, 12, 0), V(0, 0, 1), 6), False)
sketch11.addConstraint(Sketcher.Constraint("Diameter", 0, Q("11 mm")))
sketch11.addConstraint(Sketcher.Constraint("DistanceY", -1, 1, 0, 3, Q("12 mm")))
sketch11.addConstraint(Sketcher.Constraint("DistanceX", -1, 1, 0, 3, Q("6.5 mm")))
pocket7 = doc.addObject("PartDesign::Pocket", "Pocket006")
body.addObject(pocket7)
pocket7.Profile = sketch11
pocket7.Length = 5

# Sketch on XY plane
sketch12 = doc.addObject("Sketcher::SketchObject", "Sketch011")
body.addObject(sketch12)
sketch12.AttachmentSupport = (doc.XY_Plane, [""])
sketch12.MapMode = "FlatFace"
sketch12.AttachmentOffset = App.Placement(V(0, 0, 21), App.Rotation())
sketch12.addGeometry(Part.LineSegment(V(29.6, 0, 0), V(60, 0, 0)), False)
sketch12.addGeometry(Part.ArcOfCircle(Part.Circle(V(60, 10, 0), V(0, 0, 1), 10), math.radians(-90), math.radians(0)), False)
sketch12.addGeometry(Part.LineSegment(V(70, 10, 0), V(70, 13, 0)), False)
sketch12.addGeometry(Part.LineSegment(V(70, 13, 0), V(29.6, 13, 0)), False)
sketch12.addGeometry(Part.ArcOfCircle(Part.Circle(V(29.6, 11, 0), V(0, 0, 1), 2), math.radians(90), math.radians(180)), False)
sketch12.addGeometry(Part.LineSegment(V(27.6, 11, 0), V(27.6, 2, 0)), False)
sketch12.addGeometry(Part.ArcOfCircle(Part.Circle(V(29.6, 2, 0), V(0, 0, 1), 2), math.radians(-180), math.radians(-90)), False)
sketch12.addConstraint(Sketcher.Constraint("Tangent", 0, 2, 1, 1))
sketch12.addConstraint(Sketcher.Constraint("Tangent", 1, 2, 2, 1))
sketch12.addConstraint(Sketcher.Constraint("Coincident", 2, 2, 3, 1))
sketch12.addConstraint(Sketcher.Constraint("Tangent", 3, 2, 4, 1))
sketch12.addConstraint(Sketcher.Constraint("Tangent", 4, 2, 5, 1))
sketch12.addConstraint(Sketcher.Constraint("Tangent", 5, 2, 6, 1))
sketch12.addConstraint(Sketcher.Constraint("Tangent", 6, 2, 0, 1))
sketch12.addConstraint(Sketcher.Constraint("Horizontal", 0))
sketch12.addConstraint(Sketcher.Constraint("Vertical", 2))
sketch12.addConstraint(Sketcher.Constraint("Horizontal", 3))
sketch12.addConstraint(Sketcher.Constraint("Vertical", 5))
sketch12.addConstraint(Sketcher.Constraint("Equal", 4, 6))
sketch12.addConstraint(Sketcher.Constraint("PointOnObject", 0, 2, -1))
sketch12.addConstraint(Sketcher.Constraint("Radius", 1, Q("10 mm")))
sketch12.addConstraint(Sketcher.Constraint("Radius", 4, Q("2 mm")))
sketch12.addConstraint(Sketcher.Constraint("DistanceY", 2, 1, 2, 2, Q("3 mm")))
sketch12.addConstraint(Sketcher.Constraint("DistanceX", -1, 1, 1, 3, Q("60 mm")))
sketch12.addConstraint(Sketcher.Constraint("DistanceX", 0, 1, 0, 2, Q("30.361524 mm")))
pad5 = doc.addObject("PartDesign::Pad", "Pad004")
body.addObject(pad5)
pad5.Profile = sketch12
pad5.Length = 3
pad5.Reversed = True
doc.recompute()

fillet6 = doc.addObject("PartDesign::Fillet", "Fillet005")
body.addObject(fillet6)
fillet6.Base = (pad5, edges_at(pad5, [(22, 0, 16), (22, 13, 16)]))
fillet6.Radius = 2

doc.recompute()
